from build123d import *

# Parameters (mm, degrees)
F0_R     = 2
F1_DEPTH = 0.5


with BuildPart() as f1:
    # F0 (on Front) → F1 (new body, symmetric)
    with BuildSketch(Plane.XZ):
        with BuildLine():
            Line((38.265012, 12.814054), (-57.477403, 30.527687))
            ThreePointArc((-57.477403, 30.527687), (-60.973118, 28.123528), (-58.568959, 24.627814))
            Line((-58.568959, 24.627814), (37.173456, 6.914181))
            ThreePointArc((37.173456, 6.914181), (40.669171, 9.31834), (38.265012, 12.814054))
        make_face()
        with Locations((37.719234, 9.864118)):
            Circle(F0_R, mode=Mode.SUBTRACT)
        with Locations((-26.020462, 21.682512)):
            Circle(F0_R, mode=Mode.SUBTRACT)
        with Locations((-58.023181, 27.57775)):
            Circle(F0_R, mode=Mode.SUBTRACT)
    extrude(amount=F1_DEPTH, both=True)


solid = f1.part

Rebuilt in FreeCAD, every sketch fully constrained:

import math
import FreeCAD as App
import Part
import Sketcher
Q = App.Units.Quantity

doc = App.newDocument("Part")
params = doc.addObject("Spreadsheet::Sheet", "Params")
for row, (alias, value) in enumerate([
    ("sketch1_diameter", "4 mm"),
    ("sketch1_diameter2", "4 mm"),
    ("sketch1_diameter3", "4 mm"),
    ("sketch1_radius", "3 mm"),
    ("sketch1_radius2", "3 mm"),
    ("pad1_length", "1 mm"),
], start=1):
    params.set(f"A{row}", alias)
    params.set(f"B{row}", "=" + value)
    params.setAlias(f"B{row}", alias)

body = doc.addObject("PartDesign::Body", "Body")

sketch1 = doc.addObject("Sketcher::SketchObject", "Sketch")
body.addObject(sketch1)
sketch1.AttachmentSupport = (doc.XZ_Plane, [""])
sketch1.MapMode = "FlatFace"
sketch1.addGeometry([
    Part.LineSegment(App.Vector(38.265012, 12.814054, 0), App.Vector(-57.477403, 30.527687, 0)),
    Part.ArcOfCircle(Part.Circle(App.Vector(-58.023181, 27.577751, 0), App.Vector(0, 0, 1), 3), math.radians(79.518028), math.radians(259.518043)),
    Part.LineSegment(App.Vector(-58.568959, 24.627814, 0), App.Vector(37.173456, 6.914181, 0)),
    Part.ArcOfCircle(Part.Circle(App.Vector(37.719234, 9.864117, 0), App.Vector(0, 0, 1), 3), math.radians(-100.481972), math.radians(79.518043)),
    Part.Circle(App.Vector(37.719234, 9.864118, 0), App.Vector(0, 0, 1), 2),
    Part.Circle(App.Vector(-26.020462, 21.682512, 0), App.Vector(0, 0, 1), 2),
    Part.Circle(App.Vector(-58.023181, 27.57775, 0), App.Vector(0, 0, 1), 2),
], False)
sketch1.addConstraint([
    Sketcher.Constraint("Coincident", 0, 2, 1, 1),
    Sketcher.Constraint("Coincident", 1, 2, 2, 1),
    Sketcher.Constraint("Coincident", 2, 2, 3, 1),
    Sketcher.Constraint("Coincident", 3, 2, 0, 1),
    Sketcher.Constraint("Coincident", 4, 3, 3, 3),
    Sketcher.Constraint("Coincident", 6, 3, 1, 3),
    Sketcher.Constraint("Diameter", 4, Q("4 mm")),
    Sketcher.Constraint("Diameter", 5, Q("4 mm")),
    Sketcher.Constraint("Diameter", 6, Q("4 mm")),
    Sketcher.Constraint("Radius", 1, Q("3 mm")),
    Sketcher.Constraint("Radius", 3, Q("3 mm")),
    Sketcher.Constraint("DistanceY", 5, 3, 1, 2, Q("2.945302 mm")),
    Sketcher.Constraint("DistanceX", 1, 3, -1, 1, Q("58.023181 mm")),
    Sketcher.Constraint("DistanceY", -1, 1, 1, 3, Q("27.577751 mm")),
    Sketcher.Constraint("DistanceX", 5, 3, -1, 1, Q("26.020462 mm")),
    Sketcher.Constraint("DistanceY", -1, 1, 5, 3, Q("21.682512 mm")),
    Sketcher.Constraint("DistanceY", -1, 1, 2, 2, Q("6.914181 mm")),
    Sketcher.Constraint("DistanceX", 1, 3, 0, 2, Q("0.545778 mm")),
    Sketcher.Constraint("DistanceY", 4, 3, 0, 2, Q("20.663569 mm")),
    Sketcher.Constraint("DistanceX", 4, 3, 3, 2, Q("0.545778 mm")),
    Sketcher.Constraint("Distance", 0, Q("97.367257 mm")),
])
sketch1.setExpression("Constraints[6]", "Params.sketch1_diameter")
sketch1.setExpression("Constraints[7]", "Params.sketch1_diameter2")
sketch1.setExpression("Constraints[8]", "Params.sketch1_diameter3")
sketch1.setExpression("Constraints[9]", "Params.sketch1_radius")
sketch1.setExpression("Constraints[10]", "Params.sketch1_radius2")
pad1 = doc.addObject("PartDesign::Pad", "Pad")
body.addObject(pad1)
pad1.Profile = sketch1
pad1.setExpression("Length", "Params.pad1_length")
pad1.Midplane = True

doc.recompute()
